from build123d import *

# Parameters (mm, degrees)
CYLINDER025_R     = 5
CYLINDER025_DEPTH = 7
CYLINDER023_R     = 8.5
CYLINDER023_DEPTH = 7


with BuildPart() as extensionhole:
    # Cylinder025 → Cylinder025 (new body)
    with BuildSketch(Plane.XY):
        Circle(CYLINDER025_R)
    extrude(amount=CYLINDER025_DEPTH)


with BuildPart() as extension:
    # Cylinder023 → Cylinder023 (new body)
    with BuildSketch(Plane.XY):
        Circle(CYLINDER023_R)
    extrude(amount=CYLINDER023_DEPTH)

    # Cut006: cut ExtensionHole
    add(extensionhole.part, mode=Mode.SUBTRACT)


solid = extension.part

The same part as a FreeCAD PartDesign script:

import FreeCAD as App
import Part
import Sketcher

V = App.Vector

doc = App.newDocument("Part")
params = doc.addObject("Spreadsheet::Sheet", "Params")
for row, (alias, value) in enumerate([
    ("sketch1_diameter", "10 mm"),
    ("pad1_length", "7 mm"),
    ("sketch2_diameter", "17 mm"),
    ("pad2_length", "7 mm"),
], start=1):
    params.set(f"A{row}", alias)
    params.set(f"B{row}", "=" + value)
    params.setAlias(f"B{row}", alias)

body = doc.addObject("PartDesign::Body", "Body")

# Sketch on XY plane
sketch1 = body.newObject("Sketcher::SketchObject", "Sketch")
sketch1.AttachmentSupport = (doc.getObject("XY_Plane"), [""])
sketch1.MapMode = "FlatFace"
sketch1.addGeometry(Part.Circle(V(0, 0, 0), V(0, 0, 1), 5), False)
sketch1.addConstraint([
    Sketcher.Constraint("Coincident", 0, 3, -1, 1),
    Sketcher.Constraint("Diameter", 0, 10.0),
])
sketch1.setExpression("Constraints[1]", "Params.sketch1_diameter")
pad1 = body.newObject("PartDesign::Pad", "Pad")
pad1.Profile = sketch1
pad1.setExpression("Length", "Params.pad1_length")
body2 = doc.addObject("PartDesign::Body", "Body001")

# Sketch on XY plane
sketch2 = body2.newObject("Sketcher::SketchObject", "Sketch001")
sketch2.AttachmentSupport = (doc.getObject("XY_Plane001"), [""])
sketch2.MapMode = "FlatFace"
sketch2.addGeometry(Part.Circle(V(0, 0, 0), V(0, 0, 1), 8), False)
sketch2.addConstraint([
    Sketcher.Constraint("Coincident", 0, 3, -1, 1),
    Sketcher.Constraint("Diameter", 0, 17.0),
])
sketch2.setExpression("Constraints[1]", "Params.sketch2_diameter")
pad2 = body2.newObject("PartDesign::Pad", "Pad001")
pad2.Profile = sketch2
pad2.setExpression("Length", "Params.pad2_length")
doc.recompute()

boolean = body2.newObject("PartDesign::Boolean", "Boolean")
boolean.Type = "Cut"
boolean.addObjects([body])

doc.recompute()
